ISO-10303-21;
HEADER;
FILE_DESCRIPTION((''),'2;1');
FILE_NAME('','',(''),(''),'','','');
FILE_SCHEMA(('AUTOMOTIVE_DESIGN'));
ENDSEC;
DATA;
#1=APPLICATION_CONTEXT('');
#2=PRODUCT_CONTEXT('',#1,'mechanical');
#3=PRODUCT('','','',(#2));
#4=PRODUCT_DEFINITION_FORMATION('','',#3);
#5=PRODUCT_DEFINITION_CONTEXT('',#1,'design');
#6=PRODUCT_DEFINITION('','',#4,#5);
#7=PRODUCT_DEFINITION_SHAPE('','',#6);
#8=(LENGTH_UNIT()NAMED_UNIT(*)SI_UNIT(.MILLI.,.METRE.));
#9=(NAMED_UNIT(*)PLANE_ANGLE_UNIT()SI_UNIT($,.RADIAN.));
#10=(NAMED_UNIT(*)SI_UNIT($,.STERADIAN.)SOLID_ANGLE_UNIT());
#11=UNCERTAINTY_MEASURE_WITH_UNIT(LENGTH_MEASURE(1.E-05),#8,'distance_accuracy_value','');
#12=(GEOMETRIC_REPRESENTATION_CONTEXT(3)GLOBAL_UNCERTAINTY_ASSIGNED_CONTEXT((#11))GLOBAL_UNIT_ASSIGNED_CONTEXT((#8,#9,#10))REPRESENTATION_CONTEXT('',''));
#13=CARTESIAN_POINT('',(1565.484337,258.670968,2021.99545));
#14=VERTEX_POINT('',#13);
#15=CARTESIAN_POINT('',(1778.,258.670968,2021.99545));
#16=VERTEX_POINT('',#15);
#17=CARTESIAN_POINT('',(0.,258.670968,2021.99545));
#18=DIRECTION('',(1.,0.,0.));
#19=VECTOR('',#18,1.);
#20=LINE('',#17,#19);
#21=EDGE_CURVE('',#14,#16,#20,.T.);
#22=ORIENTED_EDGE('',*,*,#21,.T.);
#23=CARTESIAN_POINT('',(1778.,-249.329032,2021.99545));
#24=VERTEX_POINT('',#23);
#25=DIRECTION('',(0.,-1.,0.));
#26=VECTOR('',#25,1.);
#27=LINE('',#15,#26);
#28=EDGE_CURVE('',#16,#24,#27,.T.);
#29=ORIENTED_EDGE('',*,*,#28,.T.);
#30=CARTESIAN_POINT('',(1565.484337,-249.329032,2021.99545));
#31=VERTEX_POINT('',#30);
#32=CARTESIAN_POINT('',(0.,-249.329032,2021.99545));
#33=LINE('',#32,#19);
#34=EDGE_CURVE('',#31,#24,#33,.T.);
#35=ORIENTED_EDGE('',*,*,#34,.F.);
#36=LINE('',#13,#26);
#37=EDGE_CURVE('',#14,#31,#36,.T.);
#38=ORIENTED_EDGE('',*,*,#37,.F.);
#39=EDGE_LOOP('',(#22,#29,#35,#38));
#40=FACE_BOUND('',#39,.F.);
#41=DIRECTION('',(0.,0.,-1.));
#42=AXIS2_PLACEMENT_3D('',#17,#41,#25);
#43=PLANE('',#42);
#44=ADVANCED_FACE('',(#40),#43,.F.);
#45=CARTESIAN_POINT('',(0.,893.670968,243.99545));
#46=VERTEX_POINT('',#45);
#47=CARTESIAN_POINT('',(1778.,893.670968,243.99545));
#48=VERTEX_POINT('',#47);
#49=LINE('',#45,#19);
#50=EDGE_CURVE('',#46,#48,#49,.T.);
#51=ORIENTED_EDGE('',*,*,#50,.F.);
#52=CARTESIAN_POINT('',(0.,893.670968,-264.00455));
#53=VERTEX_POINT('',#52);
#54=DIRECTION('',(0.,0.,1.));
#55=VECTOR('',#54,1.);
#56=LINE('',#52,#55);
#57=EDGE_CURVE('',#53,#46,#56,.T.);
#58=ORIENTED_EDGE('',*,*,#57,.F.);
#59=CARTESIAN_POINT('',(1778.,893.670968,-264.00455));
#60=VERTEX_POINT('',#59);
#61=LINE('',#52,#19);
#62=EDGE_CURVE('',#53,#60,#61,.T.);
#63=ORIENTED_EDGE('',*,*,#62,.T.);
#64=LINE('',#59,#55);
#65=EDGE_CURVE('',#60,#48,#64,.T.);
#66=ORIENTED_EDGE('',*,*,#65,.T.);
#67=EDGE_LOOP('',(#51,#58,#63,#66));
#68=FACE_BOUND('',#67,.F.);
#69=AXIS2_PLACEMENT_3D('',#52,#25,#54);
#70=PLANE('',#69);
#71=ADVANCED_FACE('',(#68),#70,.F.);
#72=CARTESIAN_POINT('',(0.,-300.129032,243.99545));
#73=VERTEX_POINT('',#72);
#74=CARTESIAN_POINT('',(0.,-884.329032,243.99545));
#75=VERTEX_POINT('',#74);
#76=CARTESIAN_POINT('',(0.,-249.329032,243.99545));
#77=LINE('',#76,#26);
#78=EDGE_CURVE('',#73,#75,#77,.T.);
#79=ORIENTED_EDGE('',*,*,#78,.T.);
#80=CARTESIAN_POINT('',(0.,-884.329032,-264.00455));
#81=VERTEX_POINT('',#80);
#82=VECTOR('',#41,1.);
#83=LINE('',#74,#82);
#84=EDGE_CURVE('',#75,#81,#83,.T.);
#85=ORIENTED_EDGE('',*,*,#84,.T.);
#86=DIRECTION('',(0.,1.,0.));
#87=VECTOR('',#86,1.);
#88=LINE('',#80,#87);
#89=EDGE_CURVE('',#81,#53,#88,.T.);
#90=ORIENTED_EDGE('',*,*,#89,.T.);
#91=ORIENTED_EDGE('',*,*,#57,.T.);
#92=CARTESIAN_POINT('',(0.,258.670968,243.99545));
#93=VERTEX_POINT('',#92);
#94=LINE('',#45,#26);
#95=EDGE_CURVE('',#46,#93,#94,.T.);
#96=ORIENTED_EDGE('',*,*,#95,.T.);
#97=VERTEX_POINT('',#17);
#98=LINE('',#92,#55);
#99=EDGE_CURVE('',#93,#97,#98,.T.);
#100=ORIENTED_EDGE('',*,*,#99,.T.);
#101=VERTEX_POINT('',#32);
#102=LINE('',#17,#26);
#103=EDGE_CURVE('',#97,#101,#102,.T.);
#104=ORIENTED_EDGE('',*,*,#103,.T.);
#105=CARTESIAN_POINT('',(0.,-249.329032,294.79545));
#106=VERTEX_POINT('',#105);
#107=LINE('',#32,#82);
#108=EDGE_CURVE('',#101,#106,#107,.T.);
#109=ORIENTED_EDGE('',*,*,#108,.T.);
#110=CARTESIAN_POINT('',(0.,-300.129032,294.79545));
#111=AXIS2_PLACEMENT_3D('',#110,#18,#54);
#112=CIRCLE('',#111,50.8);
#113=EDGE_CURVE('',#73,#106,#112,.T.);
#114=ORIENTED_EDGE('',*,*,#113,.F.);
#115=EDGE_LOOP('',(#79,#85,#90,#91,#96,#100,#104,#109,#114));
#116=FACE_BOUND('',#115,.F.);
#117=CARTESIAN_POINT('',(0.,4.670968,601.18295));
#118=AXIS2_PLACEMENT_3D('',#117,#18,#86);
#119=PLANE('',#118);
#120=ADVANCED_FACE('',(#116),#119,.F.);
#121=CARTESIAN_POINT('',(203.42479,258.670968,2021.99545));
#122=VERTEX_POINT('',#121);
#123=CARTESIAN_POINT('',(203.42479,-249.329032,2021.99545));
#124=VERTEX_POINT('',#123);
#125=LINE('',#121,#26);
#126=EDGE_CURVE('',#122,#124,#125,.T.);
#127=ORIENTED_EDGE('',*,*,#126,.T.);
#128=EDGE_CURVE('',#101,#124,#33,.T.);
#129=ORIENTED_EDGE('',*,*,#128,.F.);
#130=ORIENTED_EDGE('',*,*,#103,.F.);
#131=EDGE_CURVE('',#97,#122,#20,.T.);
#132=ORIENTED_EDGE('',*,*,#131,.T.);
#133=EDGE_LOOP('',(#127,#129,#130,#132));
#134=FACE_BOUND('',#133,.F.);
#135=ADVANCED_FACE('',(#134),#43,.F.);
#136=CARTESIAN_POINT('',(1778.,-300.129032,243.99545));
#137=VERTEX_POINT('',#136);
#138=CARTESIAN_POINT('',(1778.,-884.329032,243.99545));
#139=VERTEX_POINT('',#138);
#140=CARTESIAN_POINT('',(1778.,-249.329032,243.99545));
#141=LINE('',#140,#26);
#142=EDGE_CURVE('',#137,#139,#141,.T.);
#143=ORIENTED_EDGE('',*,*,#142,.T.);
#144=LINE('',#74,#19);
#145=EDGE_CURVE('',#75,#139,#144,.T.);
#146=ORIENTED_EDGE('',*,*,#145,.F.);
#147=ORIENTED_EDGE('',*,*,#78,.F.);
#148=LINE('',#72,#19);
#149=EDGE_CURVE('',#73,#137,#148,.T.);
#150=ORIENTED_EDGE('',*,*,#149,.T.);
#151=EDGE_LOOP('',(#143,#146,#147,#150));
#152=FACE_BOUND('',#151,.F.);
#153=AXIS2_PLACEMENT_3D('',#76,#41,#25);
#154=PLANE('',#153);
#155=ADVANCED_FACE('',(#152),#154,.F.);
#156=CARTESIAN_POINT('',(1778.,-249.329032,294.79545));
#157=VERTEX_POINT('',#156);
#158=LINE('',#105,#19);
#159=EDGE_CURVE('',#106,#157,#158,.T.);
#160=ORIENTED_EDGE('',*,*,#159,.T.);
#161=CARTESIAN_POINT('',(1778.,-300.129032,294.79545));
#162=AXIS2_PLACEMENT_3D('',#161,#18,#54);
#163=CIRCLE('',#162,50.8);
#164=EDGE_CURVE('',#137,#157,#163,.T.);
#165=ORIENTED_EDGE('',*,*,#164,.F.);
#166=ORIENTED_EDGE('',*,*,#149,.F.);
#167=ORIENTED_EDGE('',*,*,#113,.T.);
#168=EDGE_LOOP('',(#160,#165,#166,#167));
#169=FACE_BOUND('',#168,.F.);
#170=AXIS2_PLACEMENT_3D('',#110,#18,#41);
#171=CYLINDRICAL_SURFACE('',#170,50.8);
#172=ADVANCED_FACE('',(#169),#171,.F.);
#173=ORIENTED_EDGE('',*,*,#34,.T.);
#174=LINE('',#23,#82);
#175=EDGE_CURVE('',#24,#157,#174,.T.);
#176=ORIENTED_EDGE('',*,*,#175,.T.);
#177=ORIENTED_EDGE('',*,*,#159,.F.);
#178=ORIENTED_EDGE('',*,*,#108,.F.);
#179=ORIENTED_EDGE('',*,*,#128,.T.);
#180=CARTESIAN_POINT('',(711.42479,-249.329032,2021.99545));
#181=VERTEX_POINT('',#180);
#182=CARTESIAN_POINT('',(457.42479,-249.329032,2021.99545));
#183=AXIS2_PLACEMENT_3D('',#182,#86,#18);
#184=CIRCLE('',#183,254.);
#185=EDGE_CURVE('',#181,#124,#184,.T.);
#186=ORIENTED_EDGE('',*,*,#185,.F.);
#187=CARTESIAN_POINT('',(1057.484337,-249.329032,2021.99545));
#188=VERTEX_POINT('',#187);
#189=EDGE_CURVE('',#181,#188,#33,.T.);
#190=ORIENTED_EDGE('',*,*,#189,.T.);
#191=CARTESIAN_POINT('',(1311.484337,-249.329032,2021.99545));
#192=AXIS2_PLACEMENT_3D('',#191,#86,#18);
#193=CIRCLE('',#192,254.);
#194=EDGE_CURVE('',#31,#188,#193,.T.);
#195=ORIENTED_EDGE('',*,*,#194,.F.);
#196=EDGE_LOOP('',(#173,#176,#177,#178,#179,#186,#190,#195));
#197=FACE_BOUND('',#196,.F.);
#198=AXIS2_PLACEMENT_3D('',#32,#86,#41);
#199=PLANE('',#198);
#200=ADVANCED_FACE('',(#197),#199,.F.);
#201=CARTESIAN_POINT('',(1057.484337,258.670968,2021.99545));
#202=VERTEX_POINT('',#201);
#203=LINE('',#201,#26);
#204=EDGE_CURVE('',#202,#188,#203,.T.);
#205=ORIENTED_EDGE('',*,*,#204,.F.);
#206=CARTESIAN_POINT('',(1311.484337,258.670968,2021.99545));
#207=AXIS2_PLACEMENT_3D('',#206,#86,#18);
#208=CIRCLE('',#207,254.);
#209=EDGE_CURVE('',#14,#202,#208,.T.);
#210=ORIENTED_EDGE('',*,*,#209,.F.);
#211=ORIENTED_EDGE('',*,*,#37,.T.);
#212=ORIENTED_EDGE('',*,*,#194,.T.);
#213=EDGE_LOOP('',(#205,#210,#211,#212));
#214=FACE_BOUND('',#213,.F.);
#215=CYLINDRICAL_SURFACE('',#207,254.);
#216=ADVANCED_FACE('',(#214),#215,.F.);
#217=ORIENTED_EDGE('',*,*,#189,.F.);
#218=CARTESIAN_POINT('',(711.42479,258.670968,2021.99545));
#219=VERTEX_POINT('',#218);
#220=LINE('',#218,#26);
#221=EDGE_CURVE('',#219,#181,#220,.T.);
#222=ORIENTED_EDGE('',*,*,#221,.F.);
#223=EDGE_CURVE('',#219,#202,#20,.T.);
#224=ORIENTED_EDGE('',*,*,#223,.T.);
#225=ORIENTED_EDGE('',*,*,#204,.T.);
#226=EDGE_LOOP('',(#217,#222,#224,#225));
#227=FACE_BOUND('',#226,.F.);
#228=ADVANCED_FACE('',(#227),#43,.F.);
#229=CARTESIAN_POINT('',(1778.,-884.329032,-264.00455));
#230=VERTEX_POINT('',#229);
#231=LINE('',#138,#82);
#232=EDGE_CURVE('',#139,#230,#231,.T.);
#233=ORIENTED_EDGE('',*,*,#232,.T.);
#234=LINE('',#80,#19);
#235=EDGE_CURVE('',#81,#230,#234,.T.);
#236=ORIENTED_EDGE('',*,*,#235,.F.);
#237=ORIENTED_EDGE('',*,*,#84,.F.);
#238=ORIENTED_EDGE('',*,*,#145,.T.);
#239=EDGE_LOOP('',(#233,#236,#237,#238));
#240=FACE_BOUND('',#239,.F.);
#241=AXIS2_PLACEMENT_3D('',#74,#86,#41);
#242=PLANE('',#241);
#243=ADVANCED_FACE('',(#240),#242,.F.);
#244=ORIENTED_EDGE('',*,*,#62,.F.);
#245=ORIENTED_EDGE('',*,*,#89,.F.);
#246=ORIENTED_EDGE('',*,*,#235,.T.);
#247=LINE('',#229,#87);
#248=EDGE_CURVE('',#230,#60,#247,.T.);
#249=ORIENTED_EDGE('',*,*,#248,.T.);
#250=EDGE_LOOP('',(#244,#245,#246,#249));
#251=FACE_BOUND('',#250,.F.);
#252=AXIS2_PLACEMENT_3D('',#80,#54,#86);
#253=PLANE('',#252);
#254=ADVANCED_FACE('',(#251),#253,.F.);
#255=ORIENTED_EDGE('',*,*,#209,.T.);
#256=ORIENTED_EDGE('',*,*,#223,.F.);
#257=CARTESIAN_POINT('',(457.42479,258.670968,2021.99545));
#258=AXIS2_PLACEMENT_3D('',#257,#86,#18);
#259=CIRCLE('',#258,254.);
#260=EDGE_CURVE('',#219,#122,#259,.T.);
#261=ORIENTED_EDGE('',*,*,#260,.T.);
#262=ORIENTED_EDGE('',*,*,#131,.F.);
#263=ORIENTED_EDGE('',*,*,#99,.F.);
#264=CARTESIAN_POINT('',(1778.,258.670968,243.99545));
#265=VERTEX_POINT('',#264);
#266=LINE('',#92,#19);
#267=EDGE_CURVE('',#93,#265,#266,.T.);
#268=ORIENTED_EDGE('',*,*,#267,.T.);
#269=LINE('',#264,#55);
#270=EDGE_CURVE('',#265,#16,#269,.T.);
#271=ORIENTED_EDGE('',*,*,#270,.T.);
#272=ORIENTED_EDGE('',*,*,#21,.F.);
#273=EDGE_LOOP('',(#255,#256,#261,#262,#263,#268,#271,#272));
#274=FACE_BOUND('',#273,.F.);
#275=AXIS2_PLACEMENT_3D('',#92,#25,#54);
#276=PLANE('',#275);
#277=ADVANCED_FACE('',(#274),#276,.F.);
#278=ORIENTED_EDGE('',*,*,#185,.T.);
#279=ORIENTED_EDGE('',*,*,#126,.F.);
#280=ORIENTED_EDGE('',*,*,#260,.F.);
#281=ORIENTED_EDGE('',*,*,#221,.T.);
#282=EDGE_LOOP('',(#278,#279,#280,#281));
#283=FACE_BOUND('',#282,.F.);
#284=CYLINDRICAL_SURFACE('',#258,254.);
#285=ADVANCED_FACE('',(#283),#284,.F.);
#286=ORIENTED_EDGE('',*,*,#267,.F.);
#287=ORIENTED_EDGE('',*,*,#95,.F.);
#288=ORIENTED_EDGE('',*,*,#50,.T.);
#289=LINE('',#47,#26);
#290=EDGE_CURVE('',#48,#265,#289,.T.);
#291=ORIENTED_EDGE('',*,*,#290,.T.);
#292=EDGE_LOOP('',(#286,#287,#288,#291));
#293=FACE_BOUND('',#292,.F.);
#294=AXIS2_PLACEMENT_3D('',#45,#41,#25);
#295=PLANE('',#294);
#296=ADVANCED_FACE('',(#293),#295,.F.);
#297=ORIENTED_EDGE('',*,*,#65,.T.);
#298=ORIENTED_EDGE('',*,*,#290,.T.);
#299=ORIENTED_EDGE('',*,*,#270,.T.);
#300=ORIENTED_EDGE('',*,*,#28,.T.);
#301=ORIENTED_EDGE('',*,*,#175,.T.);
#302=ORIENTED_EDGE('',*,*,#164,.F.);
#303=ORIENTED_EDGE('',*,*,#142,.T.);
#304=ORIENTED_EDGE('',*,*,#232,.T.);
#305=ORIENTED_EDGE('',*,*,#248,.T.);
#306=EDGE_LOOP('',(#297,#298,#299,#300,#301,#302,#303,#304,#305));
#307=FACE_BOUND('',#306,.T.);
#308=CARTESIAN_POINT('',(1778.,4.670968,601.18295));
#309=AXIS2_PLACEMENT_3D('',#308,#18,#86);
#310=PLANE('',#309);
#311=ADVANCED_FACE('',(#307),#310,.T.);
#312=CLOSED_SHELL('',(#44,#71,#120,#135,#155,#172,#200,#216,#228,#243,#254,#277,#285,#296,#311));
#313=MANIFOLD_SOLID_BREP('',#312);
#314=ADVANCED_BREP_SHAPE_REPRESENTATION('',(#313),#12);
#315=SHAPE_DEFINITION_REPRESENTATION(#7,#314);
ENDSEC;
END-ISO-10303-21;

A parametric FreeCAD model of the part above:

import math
import FreeCAD as App
import Part
import Sketcher
from FreeCAD import Vector
Q = App.Units.Quantity


def edges_at(feature, points):
    """Names of the edges that pass closest to the given points."""
    edges = feature.Shape.Edges
    near = lambda p: min(range(len(edges)), key=lambda i: edges[i].distToShape(Part.Vertex(*p))[0])
    return sorted({f"Edge{near(p) + 1}" for p in points})

doc = App.newDocument("Part")
params = doc.addObject("Spreadsheet::Sheet", "Params")
for row, (alias, value) in enumerate([
    ("sketch1_width", "70 in"),
    ("sketch1_width2", "25 in"),
    ("pad1_length", "70 in"),
    ("sketch2_radius", "10 in"),
    ("fillet_radius", "2 in"),
], start=1):
    params.set(f"A{row}", alias)
    params.set(f"B{row}", "=" + value)
    params.setAlias(f"B{row}", alias)

body = doc.addObject("PartDesign::Body", "Body")

# Sketch on YZ plane
sketch1 = body.newObject("Sketcher::SketchObject", "Sketch")
sketch1.AttachmentSupport = (doc.getObject("YZ_Plane"), [""])
sketch1.MapMode = "FlatFace"
sketch1.addGeometry(Part.LineSegment(Vector(-884.329032, 243.99545, 0), Vector(-884.329032, -264.00455, 0)), False)
sketch1.addGeometry(Part.LineSegment(Vector(-884.329032, -264.00455, 0), Vector(893.670968, -264.00455, 0)), False)
sketch1.addGeometry(Part.LineSegment(Vector(893.670968, -264.00455, 0), Vector(893.670968, 243.99545, 0)), False)
sketch1.addGeometry(Part.LineSegment(Vector(893.670968, 243.99545, 0), Vector(258.670968, 243.99545, 0)), False)
sketch1.addGeometry(Part.LineSegment(Vector(258.670968, 243.99545, 0), Vector(258.670968, 2021.99545, 0)), False)
sketch1.addGeometry(Part.LineSegment(Vector(258.670968, 2021.99545, 0), Vector(-249.329032, 2021.99545, 0)), False)
sketch1.addGeometry(Part.LineSegment(Vector(-249.329032, 2021.99545, 0), Vector(-249.329032, 243.99545, 0)), False)
sketch1.addGeometry(Part.LineSegment(Vector(-249.329032, 243.99545, 0), Vector(-884.329032, 243.99545, 0)), False)
sketch1.addConstraint(Sketcher.Constraint("Coincident", 0, 2, 1, 1))
sketch1.addConstraint(Sketcher.Constraint("Coincident", 1, 2, 2, 1))
sketch1.addConstraint(Sketcher.Constraint("Coincident", 2, 2, 3, 1))
sketch1.addConstraint(Sketcher.Constraint("Coincident", 3, 2, 4, 1))
sketch1.addConstraint(Sketcher.Constraint("Coincident", 4, 2, 5, 1))
sketch1.addConstraint(Sketcher.Constraint("Coincident", 5, 2, 6, 1))
sketch1.addConstraint(Sketcher.Constraint("Coincident", 6, 2, 7, 1))
sketch1.addConstraint(Sketcher.Constraint("Coincident", 7, 2, 0, 1))
sketch1.addConstraint(Sketcher.Constraint("Vertical", 0))
sketch1.addConstraint(Sketcher.Constraint("Horizontal", 1))
sketch1.addConstraint(Sketcher.Constraint("Vertical", 2))
sketch1.addConstraint(Sketcher.Constraint("Horizontal", 3))
sketch1.addConstraint(Sketcher.Constraint("Vertical", 4))
sketch1.addConstraint(Sketcher.Constraint("Horizontal", 5))
sketch1.addConstraint(Sketcher.Constraint("Vertical", 6))
sketch1.addConstraint(Sketcher.Constraint("Horizontal", 7))
sketch1.addConstraint(Sketcher.Constraint("Horizontal", 3, 2, 6, 2))
sketch1.addConstraint(Sketcher.Constraint("Equal", 3, 7))
sketch1.addConstraint(Sketcher.Constraint("Equal", 5, 0))
sketch1.addConstraint(Sketcher.Constraint("Equal", 1, 4))
sketch1.addConstraint(Sketcher.Constraint("DistanceX", 1, 1, 1, 2, Q("70 in")))
sketch1.addConstraint(Sketcher.Constraint("DistanceX", 3, 2, 3, 1, Q("25 in")))
sketch1.addConstraint(Sketcher.Constraint("DistanceX", 0, 2, -1, 1, Q("884.329032 mm")))
sketch1.addConstraint(Sketcher.Constraint("DistanceY", 0, 2, -1, 1, Q("264.00455 mm")))
sketch1.setExpression("Constraints[20]", "Params.sketch1_width")
sketch1.setExpression("Constraints[21]", "Params.sketch1_width2")
pad1 = body.newObject("PartDesign::Pad", "Pad")
pad1.Profile = sketch1
pad1.setExpression("Length", "Params.pad1_length")

# Sketch on XZ plane
sketch2 = body.newObject("Sketcher::SketchObject", "Sketch001")
sketch2.AttachmentSupport = (doc.getObject("XZ_Plane"), [""])
sketch2.MapMode = "FlatFace"
sketch2.AttachmentOffset = App.Placement(Vector(0, 0, -258.670968), App.Rotation())
sketch2.addGeometry(Part.LineSegment(Vector(1057.484337, 2021.99545, 0), Vector(1565.484337, 2021.99545, 0)), False)
sketch2.addGeometry(Part.ArcOfCircle(Part.Circle(Vector(1311.484337, 2021.99545, 0), Vector(0, 0, 1), 254), math.radians(180), math.radians(360)), False)
sketch2.addGeometry(Part.LineSegment(Vector(203.42479, 2021.99545, 0), Vector(711.42479, 2021.99545, 0)), False)
sketch2.addGeometry(Part.ArcOfCircle(Part.Circle(Vector(457.42479, 2021.99545, 0), Vector(0, 0, 1), 254), math.radians(180), math.radians(360)), False)
sketch2.addConstraint(Sketcher.Constraint("Coincident", 0, 1, 1, 1))
sketch2.addConstraint(Sketcher.Constraint("Coincident", 1, 2, 0, 2))
sketch2.addConstraint(Sketcher.Constraint("Coincident", 2, 1, 3, 1))
sketch2.addConstraint(Sketcher.Constraint("Coincident", 3, 2, 2, 2))
sketch2.addConstraint(Sketcher.Constraint("Horizontal", 0))
sketch2.addConstraint(Sketcher.Constraint("Horizontal", 2))
sketch2.addConstraint(Sketcher.Constraint("Equal", 1, 3))
sketch2.addConstraint(Sketcher.Constraint("Horizontal", 1, 3, 3, 3))
sketch2.addConstraint(Sketcher.Constraint("Horizontal", 3, 3, 0, 1))
sketch2.addConstraint(Sketcher.Constraint("Horizontal", 1, 2, 2, 1))
sketch2.addConstraint(Sketcher.Constraint("Radius", 1, Q("10 in")))
sketch2.addConstraint(Sketcher.Constraint("DistanceY", -1, 1, 1, 3, Q("2021.99545 mm")))
sketch2.addConstraint(Sketcher.Constraint("DistanceX", -1, 1, 3, 3, Q("457.42479 mm")))
sketch2.addConstraint(Sketcher.Constraint("DistanceX", -1, 1, 1, 3, Q("1311.484337 mm")))
sketch2.setExpression("Constraints[10]", "Params.sketch2_radius")
pocket1 = body.newObject("PartDesign::Pocket", "Pocket")
pocket1.Profile = sketch2
pocket1.Type = "ThroughAll"
pocket1.Reversed = True
doc.recompute()

fillet = body.newObject("PartDesign::Fillet", "Fillet")
fillet.Base = (pocket1, edges_at(pocket1, [(889, -249.329, 243.995)]))
fillet.setExpression("Radius", "Params.fillet_radius")

doc.recompute()
